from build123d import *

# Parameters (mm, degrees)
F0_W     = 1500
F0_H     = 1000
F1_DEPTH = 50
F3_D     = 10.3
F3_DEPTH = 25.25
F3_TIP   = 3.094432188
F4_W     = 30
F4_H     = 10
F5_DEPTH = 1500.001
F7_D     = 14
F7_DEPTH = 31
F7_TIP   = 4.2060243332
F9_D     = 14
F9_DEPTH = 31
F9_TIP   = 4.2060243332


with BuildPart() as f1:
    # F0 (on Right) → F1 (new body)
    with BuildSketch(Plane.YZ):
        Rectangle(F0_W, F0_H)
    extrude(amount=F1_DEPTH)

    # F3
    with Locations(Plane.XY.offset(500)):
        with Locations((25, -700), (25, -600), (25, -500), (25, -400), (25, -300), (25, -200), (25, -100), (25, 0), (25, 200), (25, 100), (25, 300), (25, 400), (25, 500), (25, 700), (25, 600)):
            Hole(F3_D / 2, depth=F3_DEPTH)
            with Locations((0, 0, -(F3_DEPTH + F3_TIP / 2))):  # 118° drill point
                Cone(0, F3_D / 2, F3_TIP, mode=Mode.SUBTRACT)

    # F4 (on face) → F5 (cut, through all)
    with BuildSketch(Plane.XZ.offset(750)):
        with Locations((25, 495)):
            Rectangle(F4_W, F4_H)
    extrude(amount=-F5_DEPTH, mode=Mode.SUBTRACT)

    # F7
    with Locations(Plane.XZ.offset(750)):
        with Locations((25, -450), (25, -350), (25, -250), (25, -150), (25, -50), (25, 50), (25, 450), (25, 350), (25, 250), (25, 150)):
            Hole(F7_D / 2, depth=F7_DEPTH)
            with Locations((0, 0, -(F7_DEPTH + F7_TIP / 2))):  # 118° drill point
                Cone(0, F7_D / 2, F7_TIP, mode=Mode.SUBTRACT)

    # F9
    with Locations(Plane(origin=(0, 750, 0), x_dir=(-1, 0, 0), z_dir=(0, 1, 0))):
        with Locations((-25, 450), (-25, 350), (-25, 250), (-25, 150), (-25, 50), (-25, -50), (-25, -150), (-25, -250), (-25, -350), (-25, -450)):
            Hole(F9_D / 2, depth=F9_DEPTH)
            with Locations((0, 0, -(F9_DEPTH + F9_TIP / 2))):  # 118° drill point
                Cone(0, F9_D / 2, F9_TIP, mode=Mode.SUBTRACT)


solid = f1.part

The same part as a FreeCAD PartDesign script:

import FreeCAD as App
import Part
import Sketcher

V = App.Vector
Q = App.Units.Quantity

doc = App.newDocument("Part")
body = doc.addObject("PartDesign::Body", "Body")

sketch1 = body.newObject("Sketcher::SketchObject", "Sketch")
sketch1.AttachmentSupport = (doc.getObject("YZ_Plane"), [""])
sketch1.MapMode = "FlatFace"
sketch1.addGeometry(Part.LineSegment(V(-750, 500, 0), V(-750, -500, 0)), False)
sketch1.addGeometry(Part.LineSegment(V(-750, -500, 0), V(750, -500, 0)), False)
sketch1.addGeometry(Part.LineSegment(V(750, -500, 0), V(750, 500, 0)), False)
sketch1.addGeometry(Part.LineSegment(V(750, 500, 0), V(-750, 500, 0)), False)
sketch1.addConstraint(Sketcher.Constraint("Coincident", 0, 2, 1, 1))
sketch1.addConstraint(Sketcher.Constraint("Coincident", 1, 2, 2, 1))
sketch1.addConstraint(Sketcher.Constraint("Coincident", 2, 2, 3, 1))
sketch1.addConstraint(Sketcher.Constraint("Coincident", 3, 2, 0, 1))
sketch1.addConstraint(Sketcher.Constraint("Vertical", 0))
sketch1.addConstraint(Sketcher.Constraint("Horizontal", 1))
sketch1.addConstraint(Sketcher.Constraint("Vertical", 2))
sketch1.addConstraint(Sketcher.Constraint("Horizontal", 3))
sketch1.addConstraint(Sketcher.Constraint("Symmetric", 0, 2, 2, 2, -1, 1))
sketch1.addConstraint(Sketcher.Constraint("DistanceX", 1, 1, 1, 2, Q("1500 mm")))
sketch1.addConstraint(Sketcher.Constraint("DistanceY", 0, 2, 0, 1, Q("1000 mm")))
pad1 = body.newObject("PartDesign::Pad", "Pad")
pad1.Profile = sketch1
pad1.Length = 50

sketch2 = body.newObject("Sketcher::SketchObject", "Sketch001")
sketch2.AttachmentSupport = (doc.getObject("XY_Plane"), [""])
sketch2.MapMode = "FlatFace"
sketch2.AttachmentOffset = App.Placement(V(0, 0, 500), App.Rotation())
sketch2.addGeometry(Part.Circle(V(25, -700, 0), V(0, 0, 1), 5), False)
sketch2.addGeometry(Part.Circle(V(25, -600, 0), V(0, 0, 1), 5), False)
sketch2.addGeometry(Part.Circle(V(25, -500, 0), V(0, 0, 1), 5), False)
sketch2.addGeometry(Part.Circle(V(25, -400, 0), V(0, 0, 1), 5), False)
sketch2.addGeometry(Part.Circle(V(25, -300, 0), V(0, 0, 1), 5), False)
sketch2.addGeometry(Part.Circle(V(25, -200, 0), V(0, 0, 1), 5), False)
sketch2.addGeometry(Part.Circle(V(25, -100, 0), V(0, 0, 1), 5), False)
sketch2.addGeometry(Part.Circle(V(25, 0, 0), V(0, 0, 1), 5), False)
sketch2.addGeometry(Part.Circle(V(25, 200, 0), V(0, 0, 1), 5), False)
sketch2.addGeometry(Part.Circle(V(25, 100, 0), V(0, 0, 1), 5), False)
sketch2.addGeometry(Part.Circle(V(25, 300, 0), V(0, 0, 1), 5), False)
sketch2.addGeometry(Part.Circle(V(25, 400, 0), V(0, 0, 1), 5), False)
sketch2.addGeometry(Part.Circle(V(25, 500, 0), V(0, 0, 1), 5), False)
sketch2.addGeometry(Part.Circle(V(25, 700, 0), V(0, 0, 1), 5), False)
sketch2.addGeometry(Part.Circle(V(25, 600, 0), V(0, 0, 1), 5), False)
sketch2.addConstraint(Sketcher.Constraint("Equal", 0, 1))
sketch2.addConstraint(Sketcher.Constraint("Equal", 1, 2))
sketch2.addConstraint(Sketcher.Constraint("Equal", 2, 3))
sketch2.addConstraint(Sketcher.Constraint("Equal", 3, 4))
sketch2.addConstraint(Sketcher.Constraint("Equal", 4, 5))
sketch2.addConstraint(Sketcher.Constraint("Equal", 5, 6))
sketch2.addConstraint(Sketcher.Constraint("Equal", 6, 7))
sketch2.addConstraint(Sketcher.Constraint("Equal", 7, 8))
sketch2.addConstraint(Sketcher.Constraint("Equal", 8, 9))
sketch2.addConstraint(Sketcher.Constraint("Equal", 9, 10))
sketch2.addConstraint(Sketcher.Constraint("Equal", 10, 11))
sketch2.addConstraint(Sketcher.Constraint("Equal", 11, 12))
sketch2.addConstraint(Sketcher.Constraint("Equal", 12, 13))
sketch2.addConstraint(Sketcher.Constraint("Equal", 13, 14))
sketch2.addConstraint(Sketcher.Constraint("Symmetric", 5, 3, 8, 3, -1))
sketch2.addConstraint(Sketcher.Constraint("Symmetric", 6, 3, 9, 3, -1))
sketch2.addConstraint(Sketcher.Constraint("Symmetric", 4, 3, 10, 3, -1))
sketch2.addConstraint(Sketcher.Constraint("Symmetric", 3, 3, 11, 3, -1))
sketch2.addConstraint(Sketcher.Constraint("Symmetric", 2, 3, 12, 3, -1))
sketch2.addConstraint(Sketcher.Constraint("Symmetric", 0, 3, 13, 3, -1))
sketch2.addConstraint(Sketcher.Constraint("Symmetric", 1, 3, 14, 3, -1))
sketch2.addConstraint(Sketcher.Constraint("PointOnObject", 7, 3, -1))
sketch2.addConstraint(Sketcher.Constraint("Vertical", 0, 3, 1, 3))
sketch2.addConstraint(Sketcher.Constraint("Vertical", 1, 3, 2, 3))
sketch2.addConstraint(Sketcher.Constraint("Vertical", 2, 3, 3, 3))
sketch2.addConstraint(Sketcher.Constraint("Vertical", 3, 3, 4, 3))
sketch2.addConstraint(Sketcher.Constraint("Vertical", 4, 3, 5, 3))
sketch2.addConstraint(Sketcher.Constraint("Vertical", 5, 3, 6, 3))
sketch2.addConstraint(Sketcher.Constraint("Vertical", 6, 3, 7, 3))
sketch2.addConstraint(Sketcher.Constraint("Diameter", 0, Q("10.3 mm")))
sketch2.addConstraint(Sketcher.Constraint("DistanceX", -1, 1, 0, 3, Q("25 mm")))
sketch2.addConstraint(Sketcher.Constraint("DistanceY", 0, 3, -1, 1, Q("700 mm")))
sketch2.addConstraint(Sketcher.Constraint("DistanceY", 1, 3, -1, 1, Q("600 mm")))
sketch2.addConstraint(Sketcher.Constraint("DistanceY", 2, 3, -1, 1, Q("500 mm")))
sketch2.addConstraint(Sketcher.Constraint("DistanceY", 3, 3, -1, 1, Q("400 mm")))
sketch2.addConstraint(Sketcher.Constraint("DistanceY", 4, 3, -1, 1, Q("300 mm")))
sketch2.addConstraint(Sketcher.Constraint("DistanceY", 5, 3, -1, 1, Q("200 mm")))
sketch2.addConstraint(Sketcher.Constraint("DistanceY", 6, 3, -1, 1, Q("100 mm")))
doc.recompute()
hole = body.newObject("PartDesign::Hole", "Hole")
hole.Profile = sketch2
hole.ThreadType = "None"
hole.Diameter = 10.3
hole.DepthType = "Dimension"
hole.Depth = 25.25
hole.DrillPoint = "Angled"
hole.DrillPointAngle = 118

sketch3 = body.newObject("Sketcher::SketchObject", "Sketch002")
sketch3.AttachmentSupport = (doc.getObject("XZ_Plane"), [""])
sketch3.MapMode = "FlatFace"
sketch3.AttachmentOffset = App.Placement(V(0, 0, 750), App.Rotation())
sketch3.addGeometry(Part.LineSegment(V(10, 500, 0), V(10, 490, 0)), False)
sketch3.addGeometry(Part.LineSegment(V(10, 490, 0), V(40, 490, 0)), False)
sketch3.addGeometry(Part.LineSegment(V(40, 490, 0), V(40, 500, 0)), False)
sketch3.addGeometry(Part.LineSegment(V(40, 500, 0), V(10, 500, 0)), False)
sketch3.addConstraint(Sketcher.Constraint("Coincident", 0, 2, 1, 1))
sketch3.addConstraint(Sketcher.Constraint("Coincident", 1, 2, 2, 1))
sketch3.addConstraint(Sketcher.Constraint("Coincident", 2, 2, 3, 1))
sketch3.addConstraint(Sketcher.Constraint("Coincident", 3, 2, 0, 1))
sketch3.addConstraint(Sketcher.Constraint("Vertical", 0))
sketch3.addConstraint(Sketcher.Constraint("Horizontal", 1))
sketch3.addConstraint(Sketcher.Constraint("Vertical", 2))
sketch3.addConstraint(Sketcher.Constraint("Horizontal", 3))
sketch3.addConstraint(Sketcher.Constraint("DistanceX", 1, 1, 1, 2, Q("30 mm")))
sketch3.addConstraint(Sketcher.Constraint("DistanceY", 0, 2, 0, 1, Q("10 mm")))
sketch3.addConstraint(Sketcher.Constraint("DistanceX", -1, 1, 0, 2, Q("10 mm")))
sketch3.addConstraint(Sketcher.Constraint("DistanceY", -1, 1, 0, 2, Q("490 mm")))
pocket1 = body.newObject("PartDesign::Pocket", "Pocket")
pocket1.Profile = sketch3
pocket1.Type = "ThroughAll"

sketch4 = body.newObject("Sketcher::SketchObject", "Sketch003")
sketch4.AttachmentSupport = (doc.getObject("XZ_Plane"), [""])
sketch4.MapMode = "FlatFace"
sketch4.AttachmentOffset = App.Placement(V(0, 0, 750), App.Rotation())
sketch4.addGeometry(Part.Circle(V(25, -450, 0), V(0, 0, 1), 7), False)
sketch4.addGeometry(Part.Circle(V(25, -350, 0), V(0, 0, 1), 7), False)
sketch4.addGeometry(Part.Circle(V(25, -250, 0), V(0, 0, 1), 7), False)
sketch4.addGeometry(Part.Circle(V(25, -150, 0), V(0, 0, 1), 7), False)
sketch4.addGeometry(Part.Circle(V(25, -50, 0), V(0, 0, 1), 7), False)
sketch4.addGeometry(Part.Circle(V(25, 50, 0), V(0, 0, 1), 7), False)
sketch4.addGeometry(Part.Circle(V(25, 450, 0), V(0, 0, 1), 7), False)
sketch4.addGeometry(Part.Circle(V(25, 350, 0), V(0, 0, 1), 7), False)
sketch4.addGeometry(Part.Circle(V(25, 250, 0), V(0, 0, 1), 7), False)
sketch4.addGeometry(Part.Circle(V(25, 150, 0), V(0, 0, 1), 7), False)
sketch4.addConstraint(Sketcher.Constraint("Equal", 0, 1))
sketch4.addConstraint(Sketcher.Constraint("Equal", 1, 2))
sketch4.addConstraint(Sketcher.Constraint("Equal", 2, 3))
sketch4.addConstraint(Sketcher.Constraint("Equal", 3, 4))
sketch4.addConstraint(Sketcher.Constraint("Equal", 4, 5))
sketch4.addConstraint(Sketcher.Constraint("Equal", 5, 6))
sketch4.addConstraint(Sketcher.Constraint("Equal", 6, 7))
sketch4.addConstraint(Sketcher.Constraint("Equal", 7, 8))
sketch4.addConstraint(Sketcher.Constraint("Equal", 8, 9))
sketch4.addConstraint(Sketcher.Constraint("Symmetric", 4, 3, 5, 3, -1))
sketch4.addConstraint(Sketcher.Constraint("Symmetric", 0, 3, 6, 3, -1))
sketch4.addConstraint(Sketcher.Constraint("Symmetric", 1, 3, 7, 3, -1))
sketch4.addConstraint(Sketcher.Constraint("Symmetric", 2, 3, 8, 3, -1))
sketch4.addConstraint(Sketcher.Constraint("Symmetric", 3, 3, 9, 3, -1))
sketch4.addConstraint(Sketcher.Constraint("Vertical", 0, 3, 1, 3))
sketch4.addConstraint(Sketcher.Constraint("Vertical", 1, 3, 2, 3))
sketch4.addConstraint(Sketcher.Constraint("Vertical", 2, 3, 3, 3))
sketch4.addConstraint(Sketcher.Constraint("Vertical", 3, 3, 4, 3))
sketch4.addConstraint(Sketcher.Constraint("Diameter", 0, Q("14 mm")))
sketch4.addConstraint(Sketcher.Constraint("DistanceX", -1, 1, 0, 3, Q("25 mm")))
sketch4.addConstraint(Sketcher.Constraint("DistanceY", 0, 3, -1, 1, Q("450 mm")))
sketch4.addConstraint(Sketcher.Constraint("DistanceY", 1, 3, -1, 1, Q("350 mm")))
sketch4.addConstraint(Sketcher.Constraint("DistanceY", 2, 3, -1, 1, Q("250 mm")))
sketch4.addConstraint(Sketcher.Constraint("DistanceY", 3, 3, -1, 1, Q("150 mm")))
sketch4.addConstraint(Sketcher.Constraint("DistanceY", 4, 3, -1, 1, Q("50 mm")))
doc.recompute()
hole2 = body.newObject("PartDesign::Hole", "Hole001")
hole2.Profile = sketch4
hole2.ThreadType = "None"
hole2.Diameter = 14
hole2.DepthType = "Dimension"
hole2.Depth = 31
hole2.DrillPoint = "Angled"
hole2.DrillPointAngle = 118

sketch5 = body.newObject("Sketcher::SketchObject", "Sketch004")
sketch5.AttachmentSupport = (doc.getObject("XZ_Plane"), [""])
sketch5.MapMode = "FlatFace"
sketch5.AttachmentOffset = App.Placement(V(0, 0, -750), App.Rotation())
sketch5.addGeometry(Part.Circle(V(25, 450, 0), V(0, 0, 1), 7), False)
sketch5.addGeometry(Part.Circle(V(25, 350, 0), V(0, 0, 1), 7), False)
sketch5.addGeometry(Part.Circle(V(25, 250, 0), V(0, 0, 1), 7), False)
sketch5.addGeometry(Part.Circle(V(25, 150, 0), V(0, 0, 1), 7), False)
sketch5.addGeometry(Part.Circle(V(25, 50, 0), V(0, 0, 1), 7), False)
sketch5.addGeometry(Part.Circle(V(25, -50, 0), V(0, 0, 1), 7), False)
sketch5.addGeometry(Part.Circle(V(25, -150, 0), V(0, 0, 1), 7), False)
sketch5.addGeometry(Part.Circle(V(25, -250, 0), V(0, 0, 1), 7), False)
sketch5.addGeometry(Part.Circle(V(25, -350, 0), V(0, 0, 1), 7), False)
sketch5.addGeometry(Part.Circle(V(25, -450, 0), V(0, 0, 1), 7), False)
sketch5.addConstraint(Sketcher.Constraint("Equal", 0, 1))
sketch5.addConstraint(Sketcher.Constraint("Equal", 1, 2))
sketch5.addConstraint(Sketcher.Constraint("Equal", 2, 3))
sketch5.addConstraint(Sketcher.Constraint("Equal", 3, 4))
sketch5.addConstraint(Sketcher.Constraint("Equal", 4, 5))
sketch5.addConstraint(Sketcher.Constraint("Equal", 5, 6))
sketch5.addConstraint(Sketcher.Constraint("Equal", 6, 7))
sketch5.addConstraint(Sketcher.Constraint("Equal", 7, 8))
sketch5.addConstraint(Sketcher.Constraint("Equal", 8, 9))
sketch5.addConstraint(Sketcher.Constraint("Symmetric", 4, 3, 5, 3, -1))
sketch5.addConstraint(Sketcher.Constraint("Symmetric", 3, 3, 6, 3, -1))
sketch5.addConstraint(Sketcher.Constraint("Symmetric", 2, 3, 7, 3, -1))
sketch5.addConstraint(Sketcher.Constraint("Symmetric", 1, 3, 8, 3, -1))
sketch5.addConstraint(Sketcher.Constraint("Symmetric", 0, 3, 9, 3, -1))
sketch5.addConstraint(Sketcher.Constraint("Vertical", 0, 3, 1, 3))
sketch5.addConstraint(Sketcher.Constraint("Vertical", 1, 3, 2, 3))
sketch5.addConstraint(Sketcher.Constraint("Vertical", 2, 3, 3, 3))
sketch5.addConstraint(Sketcher.Constraint("Vertical", 3, 3, 4, 3))
sketch5.addConstraint(Sketcher.Constraint("Diameter", 0, Q("14 mm")))
sketch5.addConstraint(Sketcher.Constraint("DistanceX", -1, 1, 0, 3, Q("25 mm")))
sketch5.addConstraint(Sketcher.Constraint("DistanceY", -1, 1, 0, 3, Q("450 mm")))
sketch5.addConstraint(Sketcher.Constraint("DistanceY", -1, 1, 1, 3, Q("350 mm")))
sketch5.addConstraint(Sketcher.Constraint("DistanceY", -1, 1, 2, 3, Q("250 mm")))
sketch5.addConstraint(Sketcher.Constraint("DistanceY", -1, 1, 3, 3, Q("150 mm")))
sketch5.addConstraint(Sketcher.Constraint("DistanceY", -1, 1, 4, 3, Q("50 mm")))
doc.recompute()
hole3 = body.newObject("PartDesign::Hole", "Hole002")
hole3.Profile = sketch5
hole3.ThreadType = "None"
hole3.Diameter = 14
hole3.DepthType = "Dimension"
hole3.Depth = 31
hole3.DrillPoint = "Angled"
hole3.DrillPointAngle = 118
hole3.Reversed = True

doc.recompute()
